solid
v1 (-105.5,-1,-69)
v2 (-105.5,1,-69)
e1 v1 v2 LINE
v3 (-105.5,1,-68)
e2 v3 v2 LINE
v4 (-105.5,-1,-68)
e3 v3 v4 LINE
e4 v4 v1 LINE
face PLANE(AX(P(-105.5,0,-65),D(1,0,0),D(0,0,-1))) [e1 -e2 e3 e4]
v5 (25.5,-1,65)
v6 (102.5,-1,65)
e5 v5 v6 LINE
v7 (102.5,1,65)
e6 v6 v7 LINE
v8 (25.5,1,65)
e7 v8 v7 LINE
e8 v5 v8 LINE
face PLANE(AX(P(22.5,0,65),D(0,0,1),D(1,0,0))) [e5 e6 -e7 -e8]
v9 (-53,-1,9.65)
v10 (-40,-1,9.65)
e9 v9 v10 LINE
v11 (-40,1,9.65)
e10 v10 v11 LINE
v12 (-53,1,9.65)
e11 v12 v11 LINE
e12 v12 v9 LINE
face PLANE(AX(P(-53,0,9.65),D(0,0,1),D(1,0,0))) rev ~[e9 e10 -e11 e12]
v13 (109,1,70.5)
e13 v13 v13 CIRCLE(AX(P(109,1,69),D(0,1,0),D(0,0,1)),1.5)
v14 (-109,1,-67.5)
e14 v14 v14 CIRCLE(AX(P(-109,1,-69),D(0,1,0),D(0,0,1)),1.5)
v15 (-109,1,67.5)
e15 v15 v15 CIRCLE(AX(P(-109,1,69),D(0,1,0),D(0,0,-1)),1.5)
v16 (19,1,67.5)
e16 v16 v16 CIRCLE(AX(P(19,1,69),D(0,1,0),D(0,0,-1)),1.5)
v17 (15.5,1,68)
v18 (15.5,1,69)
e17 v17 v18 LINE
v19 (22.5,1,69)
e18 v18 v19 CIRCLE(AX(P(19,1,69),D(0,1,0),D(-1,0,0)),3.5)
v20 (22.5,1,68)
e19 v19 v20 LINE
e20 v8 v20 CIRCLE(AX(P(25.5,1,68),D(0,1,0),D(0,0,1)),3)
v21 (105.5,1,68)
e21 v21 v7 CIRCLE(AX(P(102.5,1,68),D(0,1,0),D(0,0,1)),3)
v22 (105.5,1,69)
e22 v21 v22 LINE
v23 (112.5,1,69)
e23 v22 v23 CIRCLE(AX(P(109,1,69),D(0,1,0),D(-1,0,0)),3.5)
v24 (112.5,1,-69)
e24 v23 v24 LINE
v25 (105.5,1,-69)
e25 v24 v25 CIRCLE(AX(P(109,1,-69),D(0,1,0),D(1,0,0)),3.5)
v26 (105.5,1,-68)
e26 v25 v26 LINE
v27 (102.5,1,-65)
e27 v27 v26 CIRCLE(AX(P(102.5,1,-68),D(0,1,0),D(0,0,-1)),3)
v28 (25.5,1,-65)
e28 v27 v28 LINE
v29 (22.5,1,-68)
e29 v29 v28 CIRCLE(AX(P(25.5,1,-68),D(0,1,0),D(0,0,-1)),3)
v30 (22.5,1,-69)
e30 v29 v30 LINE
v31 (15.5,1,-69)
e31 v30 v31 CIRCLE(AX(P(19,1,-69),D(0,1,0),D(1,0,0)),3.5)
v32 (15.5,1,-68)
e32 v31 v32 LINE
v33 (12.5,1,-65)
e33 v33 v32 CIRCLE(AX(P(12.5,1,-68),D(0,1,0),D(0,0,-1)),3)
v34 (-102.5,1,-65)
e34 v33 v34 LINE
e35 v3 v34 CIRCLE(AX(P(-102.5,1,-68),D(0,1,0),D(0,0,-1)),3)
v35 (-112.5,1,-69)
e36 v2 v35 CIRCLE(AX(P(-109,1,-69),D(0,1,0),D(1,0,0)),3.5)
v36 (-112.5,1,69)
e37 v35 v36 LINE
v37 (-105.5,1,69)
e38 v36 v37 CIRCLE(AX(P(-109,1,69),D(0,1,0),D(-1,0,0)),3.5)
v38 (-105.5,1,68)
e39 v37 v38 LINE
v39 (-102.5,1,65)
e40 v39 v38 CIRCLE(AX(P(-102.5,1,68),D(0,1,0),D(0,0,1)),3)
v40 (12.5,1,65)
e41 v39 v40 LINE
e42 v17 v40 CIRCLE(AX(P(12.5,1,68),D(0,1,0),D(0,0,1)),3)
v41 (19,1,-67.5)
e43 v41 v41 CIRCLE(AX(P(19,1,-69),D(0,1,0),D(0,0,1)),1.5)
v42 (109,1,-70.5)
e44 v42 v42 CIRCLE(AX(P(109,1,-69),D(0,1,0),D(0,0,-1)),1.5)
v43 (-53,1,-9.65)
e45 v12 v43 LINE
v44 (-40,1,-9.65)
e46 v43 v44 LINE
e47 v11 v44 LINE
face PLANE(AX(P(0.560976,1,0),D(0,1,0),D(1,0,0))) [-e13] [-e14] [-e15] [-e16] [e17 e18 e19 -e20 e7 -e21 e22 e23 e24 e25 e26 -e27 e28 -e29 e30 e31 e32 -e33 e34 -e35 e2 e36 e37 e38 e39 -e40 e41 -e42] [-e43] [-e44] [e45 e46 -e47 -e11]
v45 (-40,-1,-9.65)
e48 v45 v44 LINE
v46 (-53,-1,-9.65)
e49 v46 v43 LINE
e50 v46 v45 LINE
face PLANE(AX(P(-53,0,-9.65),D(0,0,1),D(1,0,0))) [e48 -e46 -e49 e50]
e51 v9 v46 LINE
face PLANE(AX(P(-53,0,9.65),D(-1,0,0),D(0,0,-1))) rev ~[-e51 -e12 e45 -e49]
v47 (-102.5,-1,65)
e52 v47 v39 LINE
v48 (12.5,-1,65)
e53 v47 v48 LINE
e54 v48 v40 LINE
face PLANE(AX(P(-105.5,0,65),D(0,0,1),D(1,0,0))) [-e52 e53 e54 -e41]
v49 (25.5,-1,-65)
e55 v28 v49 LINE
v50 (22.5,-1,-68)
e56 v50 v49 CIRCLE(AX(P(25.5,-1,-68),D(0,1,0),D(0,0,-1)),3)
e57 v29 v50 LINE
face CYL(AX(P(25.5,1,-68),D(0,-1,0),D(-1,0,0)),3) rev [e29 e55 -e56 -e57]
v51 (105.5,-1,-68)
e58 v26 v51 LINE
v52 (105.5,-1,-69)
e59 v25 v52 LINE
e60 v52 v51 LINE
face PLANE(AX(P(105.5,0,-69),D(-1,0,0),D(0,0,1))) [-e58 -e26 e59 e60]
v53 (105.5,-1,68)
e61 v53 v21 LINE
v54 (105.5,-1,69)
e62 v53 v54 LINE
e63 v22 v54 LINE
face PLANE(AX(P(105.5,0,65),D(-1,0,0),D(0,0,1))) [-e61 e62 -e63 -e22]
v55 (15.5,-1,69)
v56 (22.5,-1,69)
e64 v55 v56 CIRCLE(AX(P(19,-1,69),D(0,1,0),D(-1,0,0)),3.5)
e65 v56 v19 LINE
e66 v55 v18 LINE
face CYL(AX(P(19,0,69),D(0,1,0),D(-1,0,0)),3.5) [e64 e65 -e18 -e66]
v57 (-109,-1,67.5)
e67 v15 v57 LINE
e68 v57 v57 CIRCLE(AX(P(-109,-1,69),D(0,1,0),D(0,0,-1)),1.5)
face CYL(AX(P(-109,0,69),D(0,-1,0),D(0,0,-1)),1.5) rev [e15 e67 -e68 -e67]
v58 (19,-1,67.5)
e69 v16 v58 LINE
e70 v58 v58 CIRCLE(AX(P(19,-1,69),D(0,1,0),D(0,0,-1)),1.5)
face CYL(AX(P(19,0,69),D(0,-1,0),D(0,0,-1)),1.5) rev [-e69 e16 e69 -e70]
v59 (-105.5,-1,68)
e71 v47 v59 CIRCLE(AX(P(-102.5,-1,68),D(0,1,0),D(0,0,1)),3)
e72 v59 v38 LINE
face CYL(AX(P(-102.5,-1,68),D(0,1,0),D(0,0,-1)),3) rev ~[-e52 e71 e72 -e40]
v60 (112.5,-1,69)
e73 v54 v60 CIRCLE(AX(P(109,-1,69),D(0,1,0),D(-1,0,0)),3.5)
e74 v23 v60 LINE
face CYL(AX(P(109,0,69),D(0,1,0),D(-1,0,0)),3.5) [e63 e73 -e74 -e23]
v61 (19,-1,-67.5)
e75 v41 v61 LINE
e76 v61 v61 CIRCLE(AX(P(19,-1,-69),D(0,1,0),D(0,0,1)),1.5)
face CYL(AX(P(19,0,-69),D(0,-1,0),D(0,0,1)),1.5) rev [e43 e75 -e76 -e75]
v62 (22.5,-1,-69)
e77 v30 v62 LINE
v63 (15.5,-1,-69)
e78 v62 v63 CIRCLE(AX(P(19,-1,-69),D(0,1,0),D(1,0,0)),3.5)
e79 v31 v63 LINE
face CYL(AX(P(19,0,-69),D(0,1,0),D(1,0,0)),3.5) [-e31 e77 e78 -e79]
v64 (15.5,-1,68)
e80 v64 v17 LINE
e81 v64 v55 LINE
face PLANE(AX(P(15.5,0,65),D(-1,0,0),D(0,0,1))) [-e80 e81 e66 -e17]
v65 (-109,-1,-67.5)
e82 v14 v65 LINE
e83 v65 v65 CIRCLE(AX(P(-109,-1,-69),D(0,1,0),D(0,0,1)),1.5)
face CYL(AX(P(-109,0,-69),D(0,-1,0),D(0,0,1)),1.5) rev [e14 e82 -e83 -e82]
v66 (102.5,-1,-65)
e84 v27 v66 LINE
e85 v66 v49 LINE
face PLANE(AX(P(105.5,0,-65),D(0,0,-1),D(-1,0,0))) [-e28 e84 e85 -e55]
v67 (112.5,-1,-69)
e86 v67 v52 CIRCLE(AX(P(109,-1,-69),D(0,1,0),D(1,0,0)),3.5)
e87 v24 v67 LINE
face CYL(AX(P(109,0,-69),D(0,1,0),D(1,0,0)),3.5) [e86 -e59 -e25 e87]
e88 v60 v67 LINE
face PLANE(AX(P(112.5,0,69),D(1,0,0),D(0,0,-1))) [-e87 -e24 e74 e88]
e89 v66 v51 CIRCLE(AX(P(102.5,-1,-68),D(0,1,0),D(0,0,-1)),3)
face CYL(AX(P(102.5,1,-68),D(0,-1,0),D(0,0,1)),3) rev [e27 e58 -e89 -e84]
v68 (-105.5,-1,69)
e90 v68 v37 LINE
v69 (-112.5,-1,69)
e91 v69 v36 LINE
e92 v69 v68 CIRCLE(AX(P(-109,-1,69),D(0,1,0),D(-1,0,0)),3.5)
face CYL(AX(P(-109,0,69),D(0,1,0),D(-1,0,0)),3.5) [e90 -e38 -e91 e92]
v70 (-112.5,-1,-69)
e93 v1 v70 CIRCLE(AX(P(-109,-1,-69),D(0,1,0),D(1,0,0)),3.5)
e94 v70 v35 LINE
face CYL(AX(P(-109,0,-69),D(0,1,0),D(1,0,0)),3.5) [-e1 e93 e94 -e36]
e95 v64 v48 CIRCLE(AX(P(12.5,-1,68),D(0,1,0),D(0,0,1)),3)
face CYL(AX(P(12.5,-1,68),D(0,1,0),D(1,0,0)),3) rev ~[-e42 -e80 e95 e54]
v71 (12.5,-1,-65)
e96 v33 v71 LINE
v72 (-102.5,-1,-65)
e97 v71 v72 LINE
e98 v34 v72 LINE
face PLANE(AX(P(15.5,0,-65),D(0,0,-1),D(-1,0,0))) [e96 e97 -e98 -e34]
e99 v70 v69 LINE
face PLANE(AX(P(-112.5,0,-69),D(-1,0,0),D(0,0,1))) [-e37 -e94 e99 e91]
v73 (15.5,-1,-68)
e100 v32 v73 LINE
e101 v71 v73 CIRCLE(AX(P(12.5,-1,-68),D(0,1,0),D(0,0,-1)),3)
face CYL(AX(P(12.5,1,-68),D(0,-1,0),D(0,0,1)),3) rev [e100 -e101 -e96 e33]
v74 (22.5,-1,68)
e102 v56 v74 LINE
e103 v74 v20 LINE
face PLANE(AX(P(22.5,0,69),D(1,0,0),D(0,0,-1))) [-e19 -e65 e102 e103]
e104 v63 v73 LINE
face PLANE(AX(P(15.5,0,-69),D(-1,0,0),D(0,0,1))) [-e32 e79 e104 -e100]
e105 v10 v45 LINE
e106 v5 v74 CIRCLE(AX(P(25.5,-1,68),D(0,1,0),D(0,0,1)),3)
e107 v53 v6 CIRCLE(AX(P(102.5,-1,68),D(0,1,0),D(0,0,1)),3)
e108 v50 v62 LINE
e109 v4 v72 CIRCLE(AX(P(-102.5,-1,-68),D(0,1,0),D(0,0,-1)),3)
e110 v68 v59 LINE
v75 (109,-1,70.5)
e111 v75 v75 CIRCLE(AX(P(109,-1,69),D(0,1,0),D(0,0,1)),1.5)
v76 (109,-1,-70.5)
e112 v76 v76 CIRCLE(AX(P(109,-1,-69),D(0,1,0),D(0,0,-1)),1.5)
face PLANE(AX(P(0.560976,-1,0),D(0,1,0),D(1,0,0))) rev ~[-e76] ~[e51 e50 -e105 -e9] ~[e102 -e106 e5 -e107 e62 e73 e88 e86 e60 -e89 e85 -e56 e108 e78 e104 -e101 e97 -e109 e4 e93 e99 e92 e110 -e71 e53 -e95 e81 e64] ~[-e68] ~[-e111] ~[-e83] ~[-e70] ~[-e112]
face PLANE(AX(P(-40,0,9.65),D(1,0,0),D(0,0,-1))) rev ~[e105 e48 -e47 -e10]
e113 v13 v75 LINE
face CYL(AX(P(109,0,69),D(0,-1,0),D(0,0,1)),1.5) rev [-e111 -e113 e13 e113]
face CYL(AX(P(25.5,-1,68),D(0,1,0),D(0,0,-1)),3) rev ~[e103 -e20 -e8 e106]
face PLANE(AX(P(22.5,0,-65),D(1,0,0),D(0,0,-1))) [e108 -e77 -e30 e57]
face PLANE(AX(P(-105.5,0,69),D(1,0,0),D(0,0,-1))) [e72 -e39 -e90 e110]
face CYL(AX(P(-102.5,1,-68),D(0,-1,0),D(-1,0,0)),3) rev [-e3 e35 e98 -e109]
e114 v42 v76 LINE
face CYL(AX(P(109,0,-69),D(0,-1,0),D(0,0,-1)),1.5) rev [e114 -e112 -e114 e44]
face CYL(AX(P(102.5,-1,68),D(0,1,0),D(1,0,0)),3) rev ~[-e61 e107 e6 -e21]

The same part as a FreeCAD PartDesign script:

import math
import FreeCAD as App
import Part
import Sketcher

V = App.Vector
Q = App.Units.Quantity


def edges_at(feature, points):
    """Names of the edges that pass closest to the given points."""
    edges = feature.Shape.Edges
    near = lambda p: min(range(len(edges)), key=lambda i: edges[i].distToShape(Part.Vertex(*p))[0])
    return sorted({f"Edge{near(p) + 1}" for p in points})


def add_polygon(sketch, points):
    """Adds a closed chain of lines whose ends are joined by coincident constraints."""
    first, n = sketch.GeometryCount, len(points)
    for a, b in zip(points, points[1:] + points[:1]):
        sketch.addGeometry(Part.LineSegment(App.Vector(*a, 0), App.Vector(*b, 0)), False)
    for i in range(n):
        sketch.addConstraint(Sketcher.Constraint("Coincident", first + i, 2, first + (i + 1) % n, 1))

doc = App.newDocument("Part")
body = doc.addObject("PartDesign::Body", "Body")

# Sketch on XZ plane
sketch1 = body.newObject("Sketcher::SketchObject", "Sketch")
sketch1.AttachmentSupport = (doc.getObject("XZ_Plane"), [""])
sketch1.MapMode = "FlatFace"
sketch1.addGeometry(Part.LineSegment(V(-105.5, -65, 0), V(-105.5, -69, 0)), False)  # 0
sketch1.addGeometry(Part.ArcOfCircle(Part.Circle(V(-109, -69, 0), V(0, 0, 1), 3.5), math.radians(180), math.radians(360)), False)  # 1
sketch1.addGeometry(Part.LineSegment(V(-112.5, -69, 0), V(-112.5, 69, 0)), False)  # 2
sketch1.addGeometry(Part.ArcOfCircle(Part.Circle(V(-109, 69, 0), V(0, 0, 1), 3.5), math.radians(0), math.radians(180)), False)  # 3
sketch1.addGeometry(Part.LineSegment(V(-105.5, 69, 0), V(-105.5, 65, 0)), False)  # 4
sketch1.addGeometry(Part.LineSegment(V(-105.5, 65, 0), V(15.5, 65, 0)), False)  # 5
sketch1.addGeometry(Part.LineSegment(V(15.5, 65, 0), V(15.5, 69, 0)), False)  # 6
sketch1.addGeometry(Part.ArcOfCircle(Part.Circle(V(19, 69, 0), V(0, 0, 1), 3.5), math.radians(0), math.radians(180)), False)  # 7
sketch1.addGeometry(Part.LineSegment(V(22.5, 69, 0), V(22.5, 65, 0)), False)  # 8
sketch1.addGeometry(Part.LineSegment(V(22.5, 65, 0), V(105.5, 65, 0)), False)  # 9
sketch1.addGeometry(Part.LineSegment(V(105.5, 65, 0), V(105.5, 69, 0)), False)  # 10
sketch1.addGeometry(Part.ArcOfCircle(Part.Circle(V(109, 69, 0), V(0, 0, 1), 3.5), math.radians(0), math.radians(180)), False)  # 11
sketch1.addGeometry(Part.LineSegment(V(112.5, 69, 0), V(112.5, -69, 0)), False)  # 12
sketch1.addGeometry(Part.ArcOfCircle(Part.Circle(V(109, -69, 0), V(0, 0, 1), 3.5), math.radians(180), math.radians(360)), False)  # 13
sketch1.addGeometry(Part.LineSegment(V(105.5, -69, 0), V(105.5, -65, 0)), False)  # 14
sketch1.addGeometry(Part.LineSegment(V(105.5, -65, 0), V(22.5, -65, 0)), False)  # 15
sketch1.addGeometry(Part.LineSegment(V(22.5, -65, 0), V(22.5, -69, 0)), False)  # 16
sketch1.addGeometry(Part.ArcOfCircle(Part.Circle(V(19, -69, 0), V(0, 0, 1), 3.5), math.radians(180), math.radians(360)), False)  # 17
sketch1.addGeometry(Part.LineSegment(V(15.5, -69, 0), V(15.5, -65, 0)), False)  # 18
sketch1.addGeometry(Part.LineSegment(V(15.5, -65, 0), V(-105.5, -65, 0)), False)  # 19
sketch1.addGeometry(Part.Circle(V(-109, 69, 0), V(0, 0, 1), 1.5), False)  # 20
sketch1.addGeometry(Part.Circle(V(19, 69, 0), V(0, 0, 1), 1.5), False)  # 21
sketch1.addGeometry(Part.Circle(V(109, 69, 0), V(0, 0, 1), 1.5), False)  # 22
add_polygon(sketch1, [(-40, 9.7), (-53, 9.7), (-53, -9.7), (-40, -9.7)])  # lines 23-26
sketch1.addGeometry(Part.Circle(V(-109, -69, 0), V(0, 0, 1), 1.5), False)  # 27
sketch1.addGeometry(Part.Circle(V(19, -69, 0), V(0, 0, 1), 1.5), False)  # 28
sketch1.addGeometry(Part.Circle(V(109, -69, 0), V(0, 0, 1), 1.5), False)  # 29
sketch1.addConstraint(Sketcher.Constraint("Tangent", 0, 2, 1, 2))
sketch1.addConstraint(Sketcher.Constraint("Tangent", 1, 1, 2, 1))
sketch1.addConstraint(Sketcher.Constraint("Tangent", 2, 2, 3, 2))
sketch1.addConstraint(Sketcher.Constraint("Tangent", 3, 1, 4, 1))
sketch1.addConstraint(Sketcher.Constraint("Coincident", 4, 2, 5, 1))
sketch1.addConstraint(Sketcher.Constraint("Coincident", 5, 2, 6, 1))
sketch1.addConstraint(Sketcher.Constraint("Tangent", 6, 2, 7, 2))
sketch1.addConstraint(Sketcher.Constraint("Tangent", 7, 1, 8, 1))
sketch1.addConstraint(Sketcher.Constraint("Coincident", 8, 2, 9, 1))
sketch1.addConstraint(Sketcher.Constraint("Coincident", 9, 2, 10, 1))
sketch1.addConstraint(Sketcher.Constraint("Tangent", 10, 2, 11, 2))
sketch1.addConstraint(Sketcher.Constraint("Tangent", 11, 1, 12, 1))
sketch1.addConstraint(Sketcher.Constraint("Tangent", 12, 2, 13, 2))
sketch1.addConstraint(Sketcher.Constraint("Tangent", 13, 1, 14, 1))
sketch1.addConstraint(Sketcher.Constraint("Coincident", 14, 2, 15, 1))
sketch1.addConstraint(Sketcher.Constraint("Coincident", 15, 2, 16, 1))
sketch1.addConstraint(Sketcher.Constraint("Tangent", 16, 2, 17, 2))
sketch1.addConstraint(Sketcher.Constraint("Tangent", 17, 1, 18, 1))
sketch1.addConstraint(Sketcher.Constraint("Coincident", 18, 2, 19, 1))
sketch1.addConstraint(Sketcher.Constraint("Coincident", 19, 2, 0, 1))
sketch1.addConstraint(Sketcher.Constraint("Vertical", 0))
sketch1.addConstraint(Sketcher.Constraint("Vertical", 2))
sketch1.addConstraint(Sketcher.Constraint("Vertical", 4))
sketch1.addConstraint(Sketcher.Constraint("Horizontal", 5))
sketch1.addConstraint(Sketcher.Constraint("Vertical", 6))
sketch1.addConstraint(Sketcher.Constraint("Vertical", 8))
sketch1.addConstraint(Sketcher.Constraint("Horizontal", 9))
sketch1.addConstraint(Sketcher.Constraint("Vertical", 10))
sketch1.addConstraint(Sketcher.Constraint("Vertical", 12))
sketch1.addConstraint(Sketcher.Constraint("Vertical", 14))
sketch1.addConstraint(Sketcher.Constraint("Horizontal", 15))
sketch1.addConstraint(Sketcher.Constraint("Vertical", 16))
sketch1.addConstraint(Sketcher.Constraint("Vertical", 18))
sketch1.addConstraint(Sketcher.Constraint("Horizontal", 19))
sketch1.addConstraint(Sketcher.Constraint("Horizontal", 23))
sketch1.addConstraint(Sketcher.Constraint("Vertical", 24))
sketch1.addConstraint(Sketcher.Constraint("Horizontal", 25))
sketch1.addConstraint(Sketcher.Constraint("Vertical", 26))
sketch1.addConstraint(Sketcher.Constraint("Coincident", 20, 3, 3, 3))
sketch1.addConstraint(Sketcher.Constraint("Coincident", 21, 3, 7, 3))
sketch1.addConstraint(Sketcher.Constraint("Coincident", 22, 3, 11, 3))
sketch1.addConstraint(Sketcher.Constraint("Coincident", 27, 3, 1, 3))
sketch1.addConstraint(Sketcher.Constraint("Coincident", 28, 3, 17, 3))
sketch1.addConstraint(Sketcher.Constraint("Coincident", 29, 3, 13, 3))
sketch1.addConstraint(Sketcher.Constraint("Equal", 1, 3))
sketch1.addConstraint(Sketcher.Constraint("Equal", 3, 7))
sketch1.addConstraint(Sketcher.Constraint("Equal", 7, 11))
sketch1.addConstraint(Sketcher.Constraint("Equal", 11, 13))
sketch1.addConstraint(Sketcher.Constraint("Equal", 13, 17))
sketch1.addConstraint(Sketcher.Constraint("Equal", 20, 21))
sketch1.addConstraint(Sketcher.Constraint("Equal", 21, 22))
sketch1.addConstraint(Sketcher.Constraint("Equal", 22, 27))
sketch1.addConstraint(Sketcher.Constraint("Equal", 27, 28))
sketch1.addConstraint(Sketcher.Constraint("Equal", 28, 29))
sketch1.addConstraint(Sketcher.Constraint("Symmetric", 1, 3, 11, 3, -1, 1))
sketch1.addConstraint(Sketcher.Constraint("Symmetric", 7, 3, 17, 3, -1))
sketch1.addConstraint(Sketcher.Constraint("Horizontal", 3, 3, 7, 3))
sketch1.addConstraint(Sketcher.Constraint("Horizontal", 7, 3, 11, 3))
sketch1.addConstraint(Sketcher.Constraint("Horizontal", 1, 3, 13, 3))
sketch1.addConstraint(Sketcher.Constraint("Horizontal", 5, 2, 8, 2))
sketch1.addConstraint(Sketcher.Constraint("Horizontal", 15, 2, 18, 2))
sketch1.addConstraint(Sketcher.Constraint("Equal", 0, 4))
sketch1.addConstraint(Sketcher.Constraint("Diameter", 20, Q("3 mm")))
sketch1.addConstraint(Sketcher.Constraint("Radius", 1, Q("3.5 mm")))
sketch1.addConstraint(Sketcher.Constraint("DistanceX", 5, 1, 5, 2, Q("121 mm")))
sketch1.addConstraint(Sketcher.Constraint("DistanceX", 9, 1, 9, 2, Q("83 mm")))
sketch1.addConstraint(Sketcher.Constraint("DistanceX", 23, 2, 23, 1, Q("13 mm")))
sketch1.addConstraint(Sketcher.Constraint("DistanceY", 0, 2, 0, 1, Q("4 mm")))
sketch1.addConstraint(Sketcher.Constraint("DistanceY", 2, 1, 2, 2, Q("138 mm")))
sketch1.addConstraint(Sketcher.Constraint("DistanceY", 24, 2, 24, 1, Q("19.3 mm")))
sketch1.addConstraint(Sketcher.Constraint("DistanceX", 23, 2, -1, 1, Q("53 mm")))
sketch1.addConstraint(Sketcher.Constraint("DistanceY", -1, 1, 23, 2, Q("9.65 mm")))
pad1 = body.newObject("PartDesign::Pad", "Pad")
pad1.Profile = sketch1
pad1.Length = 2
pad1.Midplane = True
doc.recompute()

fillet = body.newObject("PartDesign::Fillet", "Fillet")
fillet.Base = (pad1, edges_at(pad1, [
    (-105.5, 0, -65),
    (15.5, 0, -65),
    (22.5, 0, -65),
    (105.5, 0, -65),
    (105.5, 0, 65),
    (22.5, 0, 65),
    (15.5, 0, 65),
    (-105.5, 0, 65),
]))
fillet.Radius = 3

doc.recompute()
